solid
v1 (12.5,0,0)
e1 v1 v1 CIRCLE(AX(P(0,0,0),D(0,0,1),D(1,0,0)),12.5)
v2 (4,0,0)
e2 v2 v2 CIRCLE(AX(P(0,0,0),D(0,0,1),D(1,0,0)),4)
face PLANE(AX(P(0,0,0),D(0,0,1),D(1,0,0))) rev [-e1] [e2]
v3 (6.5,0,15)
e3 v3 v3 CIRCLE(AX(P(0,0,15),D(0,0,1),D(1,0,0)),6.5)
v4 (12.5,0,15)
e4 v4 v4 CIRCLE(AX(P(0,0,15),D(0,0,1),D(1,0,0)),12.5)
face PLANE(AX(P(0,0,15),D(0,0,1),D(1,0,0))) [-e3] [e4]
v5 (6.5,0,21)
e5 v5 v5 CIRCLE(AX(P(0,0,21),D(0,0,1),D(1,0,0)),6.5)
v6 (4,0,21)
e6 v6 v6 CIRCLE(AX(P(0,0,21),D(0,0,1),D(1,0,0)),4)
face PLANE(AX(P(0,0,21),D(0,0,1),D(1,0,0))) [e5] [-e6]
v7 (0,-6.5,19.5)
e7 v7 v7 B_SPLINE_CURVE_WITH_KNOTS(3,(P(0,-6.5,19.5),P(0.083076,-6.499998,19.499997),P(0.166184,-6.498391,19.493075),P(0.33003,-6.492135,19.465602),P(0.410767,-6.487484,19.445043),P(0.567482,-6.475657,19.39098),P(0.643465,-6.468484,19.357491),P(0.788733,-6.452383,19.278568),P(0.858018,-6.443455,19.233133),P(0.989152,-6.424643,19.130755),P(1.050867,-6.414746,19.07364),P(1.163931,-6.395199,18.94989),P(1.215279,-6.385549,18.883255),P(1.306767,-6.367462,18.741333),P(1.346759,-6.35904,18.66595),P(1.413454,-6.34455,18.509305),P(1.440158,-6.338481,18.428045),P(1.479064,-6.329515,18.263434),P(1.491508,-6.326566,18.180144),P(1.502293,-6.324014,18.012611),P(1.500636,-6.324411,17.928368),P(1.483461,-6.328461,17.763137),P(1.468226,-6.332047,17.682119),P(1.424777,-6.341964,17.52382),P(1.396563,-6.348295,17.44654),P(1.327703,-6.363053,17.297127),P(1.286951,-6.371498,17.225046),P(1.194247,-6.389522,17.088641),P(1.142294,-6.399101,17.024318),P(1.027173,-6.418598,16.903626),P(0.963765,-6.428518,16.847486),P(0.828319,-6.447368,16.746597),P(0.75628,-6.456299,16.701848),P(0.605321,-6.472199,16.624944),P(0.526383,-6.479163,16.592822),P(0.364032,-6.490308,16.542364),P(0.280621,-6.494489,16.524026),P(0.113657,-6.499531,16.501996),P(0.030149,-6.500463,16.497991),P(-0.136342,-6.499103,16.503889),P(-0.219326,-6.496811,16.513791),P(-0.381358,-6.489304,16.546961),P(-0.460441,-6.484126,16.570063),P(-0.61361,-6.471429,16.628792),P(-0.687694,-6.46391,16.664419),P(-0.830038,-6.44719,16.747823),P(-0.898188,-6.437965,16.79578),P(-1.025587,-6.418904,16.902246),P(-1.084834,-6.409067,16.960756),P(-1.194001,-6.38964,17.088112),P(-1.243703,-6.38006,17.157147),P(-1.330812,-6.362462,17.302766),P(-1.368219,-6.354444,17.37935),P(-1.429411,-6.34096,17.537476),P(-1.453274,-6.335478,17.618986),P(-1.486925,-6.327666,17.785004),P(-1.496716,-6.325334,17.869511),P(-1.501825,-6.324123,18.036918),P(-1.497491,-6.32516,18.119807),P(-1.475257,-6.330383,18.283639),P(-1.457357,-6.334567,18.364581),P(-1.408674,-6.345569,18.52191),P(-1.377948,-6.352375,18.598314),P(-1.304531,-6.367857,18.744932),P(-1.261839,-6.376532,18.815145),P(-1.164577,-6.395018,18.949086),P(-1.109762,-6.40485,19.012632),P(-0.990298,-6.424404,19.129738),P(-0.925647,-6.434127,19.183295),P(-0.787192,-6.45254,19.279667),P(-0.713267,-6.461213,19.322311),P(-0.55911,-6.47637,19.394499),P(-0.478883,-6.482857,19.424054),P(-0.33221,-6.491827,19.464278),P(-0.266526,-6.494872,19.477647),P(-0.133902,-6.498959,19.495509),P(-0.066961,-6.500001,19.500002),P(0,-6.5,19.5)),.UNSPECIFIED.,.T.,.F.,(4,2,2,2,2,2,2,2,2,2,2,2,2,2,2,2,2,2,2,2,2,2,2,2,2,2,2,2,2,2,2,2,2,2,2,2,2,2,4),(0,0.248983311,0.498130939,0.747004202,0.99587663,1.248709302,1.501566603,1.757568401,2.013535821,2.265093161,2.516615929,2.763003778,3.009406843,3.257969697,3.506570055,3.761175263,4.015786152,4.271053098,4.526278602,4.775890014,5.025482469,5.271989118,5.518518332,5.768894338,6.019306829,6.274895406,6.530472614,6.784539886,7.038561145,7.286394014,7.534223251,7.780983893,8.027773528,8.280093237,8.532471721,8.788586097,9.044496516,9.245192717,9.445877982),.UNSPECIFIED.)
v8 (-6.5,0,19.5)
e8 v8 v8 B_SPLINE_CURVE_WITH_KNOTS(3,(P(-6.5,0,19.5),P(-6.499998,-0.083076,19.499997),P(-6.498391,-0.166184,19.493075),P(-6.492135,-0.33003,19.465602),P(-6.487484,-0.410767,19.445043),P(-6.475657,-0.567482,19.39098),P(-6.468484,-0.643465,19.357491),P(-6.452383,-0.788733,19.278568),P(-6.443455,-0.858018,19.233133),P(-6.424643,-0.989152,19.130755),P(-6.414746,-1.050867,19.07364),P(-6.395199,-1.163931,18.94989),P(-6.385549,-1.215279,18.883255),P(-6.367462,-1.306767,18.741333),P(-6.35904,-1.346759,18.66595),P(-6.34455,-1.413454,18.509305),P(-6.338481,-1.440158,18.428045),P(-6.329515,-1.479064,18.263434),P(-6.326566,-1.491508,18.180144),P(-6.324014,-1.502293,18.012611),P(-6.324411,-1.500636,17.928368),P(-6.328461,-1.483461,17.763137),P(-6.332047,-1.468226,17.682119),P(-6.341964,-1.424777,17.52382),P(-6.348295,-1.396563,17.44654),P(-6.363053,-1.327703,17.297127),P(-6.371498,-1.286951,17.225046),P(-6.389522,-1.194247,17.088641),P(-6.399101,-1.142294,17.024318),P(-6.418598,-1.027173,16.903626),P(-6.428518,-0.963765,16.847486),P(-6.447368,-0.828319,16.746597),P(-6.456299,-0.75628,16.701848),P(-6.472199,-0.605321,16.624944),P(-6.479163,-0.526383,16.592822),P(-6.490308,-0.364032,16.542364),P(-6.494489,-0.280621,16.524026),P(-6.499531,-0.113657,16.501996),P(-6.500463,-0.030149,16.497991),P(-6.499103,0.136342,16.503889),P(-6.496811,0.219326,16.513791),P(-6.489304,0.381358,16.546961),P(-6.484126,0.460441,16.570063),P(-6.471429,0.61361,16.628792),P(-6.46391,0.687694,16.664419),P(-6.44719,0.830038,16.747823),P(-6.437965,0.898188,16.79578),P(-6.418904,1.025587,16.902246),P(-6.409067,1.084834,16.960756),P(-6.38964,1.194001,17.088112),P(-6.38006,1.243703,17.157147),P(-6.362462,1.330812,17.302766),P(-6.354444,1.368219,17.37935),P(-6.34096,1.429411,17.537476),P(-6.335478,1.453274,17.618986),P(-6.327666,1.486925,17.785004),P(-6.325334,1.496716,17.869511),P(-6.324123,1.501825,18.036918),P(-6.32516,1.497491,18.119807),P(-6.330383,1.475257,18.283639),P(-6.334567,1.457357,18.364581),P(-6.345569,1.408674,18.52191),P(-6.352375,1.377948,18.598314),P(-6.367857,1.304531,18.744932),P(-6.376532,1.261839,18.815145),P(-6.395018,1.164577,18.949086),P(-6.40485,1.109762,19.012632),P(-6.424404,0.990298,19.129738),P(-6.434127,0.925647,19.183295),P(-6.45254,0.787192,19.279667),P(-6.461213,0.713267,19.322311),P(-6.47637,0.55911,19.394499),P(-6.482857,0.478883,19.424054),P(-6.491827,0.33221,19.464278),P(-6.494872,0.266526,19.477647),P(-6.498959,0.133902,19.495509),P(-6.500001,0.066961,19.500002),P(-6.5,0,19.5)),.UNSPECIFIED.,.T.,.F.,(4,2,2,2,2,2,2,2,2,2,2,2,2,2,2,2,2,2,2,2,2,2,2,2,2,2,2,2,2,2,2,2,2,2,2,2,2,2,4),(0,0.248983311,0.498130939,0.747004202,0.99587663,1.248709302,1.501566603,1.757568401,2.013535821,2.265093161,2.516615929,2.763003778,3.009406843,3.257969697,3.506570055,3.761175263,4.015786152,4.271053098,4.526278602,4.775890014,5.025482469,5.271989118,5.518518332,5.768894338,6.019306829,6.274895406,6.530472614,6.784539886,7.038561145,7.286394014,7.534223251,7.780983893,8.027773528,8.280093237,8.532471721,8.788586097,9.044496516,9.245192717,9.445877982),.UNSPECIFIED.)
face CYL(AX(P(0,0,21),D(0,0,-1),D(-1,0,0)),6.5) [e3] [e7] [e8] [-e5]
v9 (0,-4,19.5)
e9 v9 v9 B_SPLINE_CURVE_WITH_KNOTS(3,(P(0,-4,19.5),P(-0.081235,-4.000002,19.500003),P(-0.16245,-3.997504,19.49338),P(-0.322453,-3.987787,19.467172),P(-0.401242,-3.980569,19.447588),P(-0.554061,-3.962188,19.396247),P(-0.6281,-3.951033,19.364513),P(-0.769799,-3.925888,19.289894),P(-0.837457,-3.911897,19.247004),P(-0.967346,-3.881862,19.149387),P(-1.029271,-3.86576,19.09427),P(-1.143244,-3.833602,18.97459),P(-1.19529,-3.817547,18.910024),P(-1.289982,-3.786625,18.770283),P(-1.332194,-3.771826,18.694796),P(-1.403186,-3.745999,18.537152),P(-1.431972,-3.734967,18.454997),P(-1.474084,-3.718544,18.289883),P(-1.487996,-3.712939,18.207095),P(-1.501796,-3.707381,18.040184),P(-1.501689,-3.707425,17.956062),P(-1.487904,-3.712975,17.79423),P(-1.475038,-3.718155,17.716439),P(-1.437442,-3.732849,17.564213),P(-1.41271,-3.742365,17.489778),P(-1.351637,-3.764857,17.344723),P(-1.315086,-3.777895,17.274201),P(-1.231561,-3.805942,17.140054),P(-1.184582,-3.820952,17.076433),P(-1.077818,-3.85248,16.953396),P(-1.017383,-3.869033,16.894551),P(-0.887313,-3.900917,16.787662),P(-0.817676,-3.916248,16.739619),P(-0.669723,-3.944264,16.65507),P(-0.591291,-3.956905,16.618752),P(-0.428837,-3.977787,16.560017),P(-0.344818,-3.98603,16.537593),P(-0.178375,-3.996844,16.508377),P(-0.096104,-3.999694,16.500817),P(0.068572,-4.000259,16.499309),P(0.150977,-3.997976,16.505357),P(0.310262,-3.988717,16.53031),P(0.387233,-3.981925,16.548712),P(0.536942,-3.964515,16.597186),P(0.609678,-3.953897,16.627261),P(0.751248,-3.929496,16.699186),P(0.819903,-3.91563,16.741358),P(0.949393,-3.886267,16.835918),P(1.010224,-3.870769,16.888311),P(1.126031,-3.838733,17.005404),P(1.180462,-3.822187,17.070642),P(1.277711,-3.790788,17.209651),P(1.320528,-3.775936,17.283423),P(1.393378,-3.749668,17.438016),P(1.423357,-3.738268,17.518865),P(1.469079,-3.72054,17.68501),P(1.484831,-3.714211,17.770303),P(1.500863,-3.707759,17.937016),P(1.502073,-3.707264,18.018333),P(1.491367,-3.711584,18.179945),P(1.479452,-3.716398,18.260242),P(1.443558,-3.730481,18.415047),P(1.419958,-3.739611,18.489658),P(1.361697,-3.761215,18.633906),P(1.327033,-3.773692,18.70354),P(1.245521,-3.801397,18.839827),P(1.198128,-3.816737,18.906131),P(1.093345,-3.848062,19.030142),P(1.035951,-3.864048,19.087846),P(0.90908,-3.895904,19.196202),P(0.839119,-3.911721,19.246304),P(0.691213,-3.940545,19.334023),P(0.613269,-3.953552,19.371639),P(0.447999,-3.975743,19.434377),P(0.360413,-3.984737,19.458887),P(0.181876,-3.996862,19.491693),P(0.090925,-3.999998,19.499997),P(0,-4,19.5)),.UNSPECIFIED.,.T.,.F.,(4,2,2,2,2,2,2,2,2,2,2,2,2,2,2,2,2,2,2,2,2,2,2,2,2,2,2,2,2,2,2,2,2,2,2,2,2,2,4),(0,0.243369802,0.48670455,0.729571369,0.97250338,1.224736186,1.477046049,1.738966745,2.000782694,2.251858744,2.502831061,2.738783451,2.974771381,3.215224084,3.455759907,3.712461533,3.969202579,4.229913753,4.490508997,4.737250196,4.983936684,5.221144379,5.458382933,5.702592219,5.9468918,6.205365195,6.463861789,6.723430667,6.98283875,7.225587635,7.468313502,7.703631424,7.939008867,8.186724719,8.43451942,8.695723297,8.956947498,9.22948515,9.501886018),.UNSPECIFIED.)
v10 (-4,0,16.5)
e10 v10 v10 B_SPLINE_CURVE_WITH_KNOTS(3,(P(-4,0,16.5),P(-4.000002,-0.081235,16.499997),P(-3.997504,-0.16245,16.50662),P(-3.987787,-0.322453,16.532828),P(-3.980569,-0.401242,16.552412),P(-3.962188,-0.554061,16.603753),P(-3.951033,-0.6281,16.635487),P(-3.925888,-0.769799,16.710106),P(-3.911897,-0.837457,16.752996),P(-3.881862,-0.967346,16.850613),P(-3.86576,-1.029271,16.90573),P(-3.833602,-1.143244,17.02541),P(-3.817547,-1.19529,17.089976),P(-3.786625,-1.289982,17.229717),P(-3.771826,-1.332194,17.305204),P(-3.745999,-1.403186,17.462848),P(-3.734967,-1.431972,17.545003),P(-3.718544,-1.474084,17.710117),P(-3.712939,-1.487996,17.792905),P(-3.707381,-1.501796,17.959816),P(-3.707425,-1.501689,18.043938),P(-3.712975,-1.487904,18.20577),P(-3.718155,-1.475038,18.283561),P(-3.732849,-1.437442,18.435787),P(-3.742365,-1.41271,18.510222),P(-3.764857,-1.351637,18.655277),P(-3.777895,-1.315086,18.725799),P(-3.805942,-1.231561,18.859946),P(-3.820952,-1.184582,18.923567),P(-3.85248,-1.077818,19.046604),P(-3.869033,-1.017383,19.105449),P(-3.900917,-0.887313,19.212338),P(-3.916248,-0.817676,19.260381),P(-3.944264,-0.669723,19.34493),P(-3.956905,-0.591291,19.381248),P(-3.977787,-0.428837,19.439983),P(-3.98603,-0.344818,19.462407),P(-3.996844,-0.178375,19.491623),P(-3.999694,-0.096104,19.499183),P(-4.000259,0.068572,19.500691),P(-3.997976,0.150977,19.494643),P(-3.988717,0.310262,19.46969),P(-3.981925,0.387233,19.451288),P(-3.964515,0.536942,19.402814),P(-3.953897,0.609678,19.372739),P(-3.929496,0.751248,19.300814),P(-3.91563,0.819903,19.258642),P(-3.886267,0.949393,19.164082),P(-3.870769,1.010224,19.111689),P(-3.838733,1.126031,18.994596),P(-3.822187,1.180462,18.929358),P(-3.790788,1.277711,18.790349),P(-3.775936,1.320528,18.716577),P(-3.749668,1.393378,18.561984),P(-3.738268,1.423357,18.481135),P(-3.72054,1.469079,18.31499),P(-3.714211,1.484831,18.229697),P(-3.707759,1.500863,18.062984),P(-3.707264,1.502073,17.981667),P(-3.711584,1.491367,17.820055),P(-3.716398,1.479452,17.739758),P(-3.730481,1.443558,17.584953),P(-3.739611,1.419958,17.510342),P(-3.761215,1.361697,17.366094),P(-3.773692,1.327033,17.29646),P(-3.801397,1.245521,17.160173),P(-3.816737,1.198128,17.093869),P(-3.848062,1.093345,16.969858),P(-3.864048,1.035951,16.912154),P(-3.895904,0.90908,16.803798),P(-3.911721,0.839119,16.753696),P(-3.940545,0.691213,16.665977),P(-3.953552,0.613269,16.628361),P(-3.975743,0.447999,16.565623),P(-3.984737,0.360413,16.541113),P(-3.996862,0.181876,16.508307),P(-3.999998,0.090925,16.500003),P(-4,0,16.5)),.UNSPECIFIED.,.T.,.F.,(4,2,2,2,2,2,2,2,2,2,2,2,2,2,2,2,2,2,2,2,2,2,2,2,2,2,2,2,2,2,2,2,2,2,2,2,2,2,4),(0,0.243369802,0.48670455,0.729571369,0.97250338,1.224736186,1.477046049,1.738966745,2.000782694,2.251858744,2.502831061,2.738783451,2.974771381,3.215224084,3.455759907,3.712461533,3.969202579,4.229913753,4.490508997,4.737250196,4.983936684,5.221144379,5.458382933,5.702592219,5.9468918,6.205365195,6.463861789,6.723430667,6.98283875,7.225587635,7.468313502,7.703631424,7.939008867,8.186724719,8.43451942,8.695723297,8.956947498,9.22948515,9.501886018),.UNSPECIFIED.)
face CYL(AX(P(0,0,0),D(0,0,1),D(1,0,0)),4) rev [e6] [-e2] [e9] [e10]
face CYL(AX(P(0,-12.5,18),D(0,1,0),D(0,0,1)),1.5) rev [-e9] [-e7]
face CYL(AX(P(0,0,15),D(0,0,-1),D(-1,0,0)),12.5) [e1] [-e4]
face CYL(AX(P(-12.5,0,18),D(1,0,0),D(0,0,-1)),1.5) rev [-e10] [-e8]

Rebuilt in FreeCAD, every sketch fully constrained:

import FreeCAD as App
import Part
import Sketcher

V = App.Vector
Q = App.Units.Quantity

doc = App.newDocument("Part")
body = doc.addObject("PartDesign::Body", "Body")

sketch1 = doc.addObject("Sketcher::SketchObject", "Sketch")
body.addObject(sketch1)
sketch1.AttachmentSupport = (doc.XY_Plane, [""])
sketch1.MapMode = "FlatFace"
sketch1.addGeometry(Part.Circle(V(0, 0, 0), V(0, 0, 1), 12), False)
sketch1.addConstraint([
    Sketcher.Constraint("Coincident", 0, 3, -1, 1),
    Sketcher.Constraint("Diameter", 0, Q("25 mm")),
])
pad1 = doc.addObject("PartDesign::Pad", "Pad")
body.addObject(pad1)
pad1.Profile = sketch1
pad1.Length = 15

sketch2 = doc.addObject("Sketcher::SketchObject", "Sketch001")
body.addObject(sketch2)
sketch2.AttachmentSupport = (doc.XY_Plane, [""])
sketch2.MapMode = "FlatFace"
sketch2.AttachmentOffset = App.Placement(V(0, 0, 15), App.Rotation())
sketch2.addGeometry(Part.Circle(V(0, 0, 0), V(0, 0, 1), 6), False)
sketch2.addConstraint([
    Sketcher.Constraint("Coincident", 0, 3, -1, 1),
    Sketcher.Constraint("Diameter", 0, Q("13 mm")),
])
pad2 = doc.addObject("PartDesign::Pad", "Pad001")
body.addObject(pad2)
pad2.Profile = sketch2
pad2.Length = 6

sketch3 = doc.addObject("Sketcher::SketchObject", "Sketch002")
body.addObject(sketch3)
sketch3.AttachmentSupport = (doc.XY_Plane, [""])
sketch3.MapMode = "FlatFace"
sketch3.AttachmentOffset = App.Placement(V(0, 0, 21), App.Rotation())
sketch3.addGeometry(Part.Circle(V(0, 0, 0), V(0, 0, 1), 4), False)
sketch3.addConstraint([
    Sketcher.Constraint("Coincident", 0, 3, -1, 1),
    Sketcher.Constraint("Diameter", 0, Q("8 mm")),
])
pocket1 = doc.addObject("PartDesign::Pocket", "Pocket")
body.addObject(pocket1)
pocket1.Profile = sketch3
pocket1.Type = "ThroughAll"

sketch4 = doc.addObject("Sketcher::SketchObject", "Sketch003")
body.addObject(sketch4)
sketch4.AttachmentSupport = (doc.XZ_Plane, [""])
sketch4.MapMode = "FlatFace"
sketch4.addGeometry(Part.Circle(V(0, 18, 0), V(0, 0, 1), 1.5), False)
sketch4.addConstraint([
    Sketcher.Constraint("PointOnObject", 0, 3, -2),
    Sketcher.Constraint("Diameter", 0, Q("3 mm")),
    Sketcher.Constraint("DistanceY", -1, 1, 0, 3, Q("18 mm")),
])
pocket2 = doc.addObject("PartDesign::Pocket", "Pocket001")
body.addObject(pocket2)
pocket2.Profile = sketch4
pocket2.Type = "ThroughAll"
pocket2.Reversed = True

sketch5 = doc.addObject("Sketcher::SketchObject", "Sketch004")
body.addObject(sketch5)
sketch5.AttachmentSupport = (doc.YZ_Plane, [""])
sketch5.MapMode = "FlatFace"
sketch5.addGeometry(Part.Circle(V(0, 18, 0), V(0, 0, 1), 1.5), False)
sketch5.addConstraint([
    Sketcher.Constraint("PointOnObject", 0, 3, -2),
    Sketcher.Constraint("Diameter", 0, Q("3 mm")),
    Sketcher.Constraint("DistanceY", -1, 1, 0, 3, Q("18 mm")),
])
pocket3 = doc.addObject("PartDesign::Pocket", "Pocket002")
body.addObject(pocket3)
pocket3.Profile = sketch5
pocket3.Type = "ThroughAll"

doc.recompute()
